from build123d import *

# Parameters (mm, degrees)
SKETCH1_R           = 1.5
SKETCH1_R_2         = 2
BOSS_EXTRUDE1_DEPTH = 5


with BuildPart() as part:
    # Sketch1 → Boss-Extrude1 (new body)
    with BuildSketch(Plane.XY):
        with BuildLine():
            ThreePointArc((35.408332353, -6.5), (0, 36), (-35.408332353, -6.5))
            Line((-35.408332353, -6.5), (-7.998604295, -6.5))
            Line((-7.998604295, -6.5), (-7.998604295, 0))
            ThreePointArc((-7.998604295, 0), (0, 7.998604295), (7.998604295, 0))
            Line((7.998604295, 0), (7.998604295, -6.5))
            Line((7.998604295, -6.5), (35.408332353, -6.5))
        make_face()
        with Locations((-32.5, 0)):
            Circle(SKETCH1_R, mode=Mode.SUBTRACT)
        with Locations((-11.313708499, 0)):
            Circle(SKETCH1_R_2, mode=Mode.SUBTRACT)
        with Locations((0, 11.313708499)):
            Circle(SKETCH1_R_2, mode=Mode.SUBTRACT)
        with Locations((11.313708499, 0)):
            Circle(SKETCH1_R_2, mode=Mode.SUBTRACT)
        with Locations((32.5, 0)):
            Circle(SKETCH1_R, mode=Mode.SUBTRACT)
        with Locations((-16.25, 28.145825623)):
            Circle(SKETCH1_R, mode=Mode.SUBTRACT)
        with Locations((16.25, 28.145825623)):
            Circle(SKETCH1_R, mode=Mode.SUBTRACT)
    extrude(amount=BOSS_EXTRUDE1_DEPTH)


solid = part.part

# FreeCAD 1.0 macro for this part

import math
import FreeCAD as App
import Part
import Sketcher
Q = App.Units.Quantity

doc = App.newDocument("Part")
body = doc.addObject("PartDesign::Body", "Body")

sketch1 = doc.addObject("Sketcher::SketchObject", "Sketch")
body.addObject(sketch1)
sketch1.AttachmentSupport = (doc.XY_Plane, [""])
sketch1.MapMode = "FlatFace"
sketch1.addGeometry([
    Part.ArcOfCircle(Part.Circle(App.Vector(0, 0, 0), App.Vector(0, 0, 1), 36), math.radians(-10), math.radians(190)),
    Part.LineSegment(App.Vector(-35.4, -6.5, 0), App.Vector(-8, -6.5, 0)),
    Part.LineSegment(App.Vector(-8, -6.5, 0), App.Vector(-8, 0, 0)),
    Part.ArcOfCircle(Part.Circle(App.Vector(0, 0, 0), App.Vector(0, 0, 1), 8), math.radians(0), math.radians(180)),
    Part.LineSegment(App.Vector(8, 0, 0), App.Vector(8, -6.5, 0)),
    Part.LineSegment(App.Vector(8, -6.5, 0), App.Vector(35.4, -6.5, 0)),
    Part.Circle(App.Vector(-32.5, 0, 0), App.Vector(0, 0, 1), 1.5),
    Part.Circle(App.Vector(-11.3, 0, 0), App.Vector(0, 0, 1), 2),
    Part.Circle(App.Vector(11.3, 0, 0), App.Vector(0, 0, 1), 2),
    Part.Circle(App.Vector(32.5, 0, 0), App.Vector(0, 0, 1), 1.5),
    Part.Circle(App.Vector(0, 11.3, 0), App.Vector(0, 0, 1), 2),
    Part.Circle(App.Vector(-16.2, 28.1, 0), App.Vector(0, 0, 1), 1.5),
    Part.Circle(App.Vector(16.2, 28.1, 0), App.Vector(0, 0, 1), 1.5),
], False)
sketch1.addConstraint([
    Sketcher.Constraint("Coincident", 0, 2, 1, 1),
    Sketcher.Constraint("Coincident", 1, 2, 2, 1),
    Sketcher.Constraint("Tangent", 2, 2, 3, 2),
    Sketcher.Constraint("Tangent", 3, 1, 4, 1),
    Sketcher.Constraint("Coincident", 4, 2, 5, 1),
    Sketcher.Constraint("Coincident", 5, 2, 0, 1),
    Sketcher.Constraint("Horizontal", 1),
    Sketcher.Constraint("Vertical", 2),
    Sketcher.Constraint("Vertical", 4),
    Sketcher.Constraint("Horizontal", 5),
    Sketcher.Constraint("Coincident", 0, 3, -1, 1),
    Sketcher.Constraint("Coincident", 3, 3, -1, 1),
    Sketcher.Constraint("Equal", 7, 8),
    Sketcher.Constraint("Equal", 6, 9),
    Sketcher.Constraint("Equal", 8, 10),
    Sketcher.Constraint("Equal", 9, 11),
    Sketcher.Constraint("Equal", 11, 12),
    Sketcher.Constraint("Symmetric", 7, 3, 8, 3, -1, 1),
    Sketcher.Constraint("Symmetric", 6, 3, 9, 3, -1, 1),
    Sketcher.Constraint("Symmetric", 11, 3, 12, 3, -2),
    Sketcher.Constraint("PointOnObject", 6, 3, -1),
    Sketcher.Constraint("PointOnObject", 7, 3, -1),
    Sketcher.Constraint("PointOnObject", 10, 3, -2),
    Sketcher.Constraint("Horizontal", 1, 2, 4, 2),
    Sketcher.Constraint("Diameter", 6, Q("3 mm")),
    Sketcher.Constraint("Diameter", 7, Q("4 mm")),
    Sketcher.Constraint("Radius", 0, Q("36 mm")),
    Sketcher.Constraint("DistanceY", 2, 1, 2, 2, Q("6.5 mm")),
    Sketcher.Constraint("DistanceX", 6, 3, 9, 3, Q("65 mm")),
    Sketcher.Constraint("DistanceX", 11, 3, 12, 3, Q("32.5 mm")),
    Sketcher.Constraint("Radius", 3, Q("7.998604 mm")),
    Sketcher.Constraint("DistanceX", 7, 3, -1, 1, Q("11.313708 mm")),
    Sketcher.Constraint("DistanceY", -1, 1, 10, 3, Q("11.313708 mm")),
    Sketcher.Constraint("DistanceY", -1, 1, 11, 3, Q("28.145826 mm")),
])
pad1 = doc.addObject("PartDesign::Pad", "Pad")
body.addObject(pad1)
pad1.Profile = sketch1
pad1.Length = 5

doc.recompute()
